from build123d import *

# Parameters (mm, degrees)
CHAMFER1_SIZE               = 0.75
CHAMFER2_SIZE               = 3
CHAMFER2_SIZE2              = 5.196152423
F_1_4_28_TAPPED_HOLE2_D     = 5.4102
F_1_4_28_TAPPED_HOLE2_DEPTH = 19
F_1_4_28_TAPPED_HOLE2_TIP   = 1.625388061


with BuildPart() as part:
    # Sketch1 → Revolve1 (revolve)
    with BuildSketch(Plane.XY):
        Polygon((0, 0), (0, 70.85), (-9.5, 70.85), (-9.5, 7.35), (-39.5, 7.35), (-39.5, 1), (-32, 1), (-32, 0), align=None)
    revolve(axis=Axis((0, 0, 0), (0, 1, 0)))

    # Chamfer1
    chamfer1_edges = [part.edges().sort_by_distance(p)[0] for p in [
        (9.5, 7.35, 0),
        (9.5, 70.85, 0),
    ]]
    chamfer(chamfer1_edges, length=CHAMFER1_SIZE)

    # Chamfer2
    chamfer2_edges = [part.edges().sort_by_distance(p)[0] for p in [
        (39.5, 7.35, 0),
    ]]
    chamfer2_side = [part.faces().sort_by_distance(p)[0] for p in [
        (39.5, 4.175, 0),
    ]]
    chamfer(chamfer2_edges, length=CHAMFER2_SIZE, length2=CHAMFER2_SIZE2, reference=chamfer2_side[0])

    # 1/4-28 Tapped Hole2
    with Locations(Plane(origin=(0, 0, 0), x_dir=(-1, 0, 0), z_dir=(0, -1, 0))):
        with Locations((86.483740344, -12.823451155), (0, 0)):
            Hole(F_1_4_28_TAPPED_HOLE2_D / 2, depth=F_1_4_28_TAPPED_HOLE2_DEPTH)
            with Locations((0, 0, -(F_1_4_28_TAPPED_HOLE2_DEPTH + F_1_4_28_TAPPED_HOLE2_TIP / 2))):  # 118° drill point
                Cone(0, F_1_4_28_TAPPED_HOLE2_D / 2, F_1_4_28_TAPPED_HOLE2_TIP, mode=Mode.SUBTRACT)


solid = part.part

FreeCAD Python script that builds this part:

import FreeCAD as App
import Part
import Sketcher

V = App.Vector
Q = App.Units.Quantity


def edges_at(feature, points):
    """Names of the edges that pass closest to the given points."""
    edges = feature.Shape.Edges
    near = lambda p: min(range(len(edges)), key=lambda i: edges[i].distToShape(Part.Vertex(*p))[0])
    return sorted({f"Edge{near(p) + 1}" for p in points})

doc = App.newDocument("Part")
body = doc.addObject("PartDesign::Body", "Body")

# Sketch on XY plane
sketch1 = body.newObject("Sketcher::SketchObject", "Sketch")
sketch1.AttachmentSupport = (doc.getObject("XY_Plane"), [""])
sketch1.MapMode = "FlatFace"
sketch1.addGeometry(Part.LineSegment(V(0, 0, 0), V(0, 70.8, 0)), False)
sketch1.addGeometry(Part.LineSegment(V(0, 70.8, 0), V(-9.5, 70.8, 0)), False)
sketch1.addGeometry(Part.LineSegment(V(-9.5, 70.8, 0), V(-9.5, 7.3, 0)), False)
sketch1.addGeometry(Part.LineSegment(V(-9.5, 7.3, 0), V(-39.5, 7.3, 0)), False)
sketch1.addGeometry(Part.LineSegment(V(-39.5, 7.3, 0), V(-39.5, 1, 0)), False)
sketch1.addGeometry(Part.LineSegment(V(-39.5, 1, 0), V(-32, 1, 0)), False)
sketch1.addGeometry(Part.LineSegment(V(-32, 1, 0), V(-32, 0, 0)), False)
sketch1.addGeometry(Part.LineSegment(V(-32, 0, 0), V(0, 0, 0)), False)
sketch1.addConstraint(Sketcher.Constraint("Coincident", 0, 2, 1, 1))
sketch1.addConstraint(Sketcher.Constraint("Coincident", 1, 2, 2, 1))
sketch1.addConstraint(Sketcher.Constraint("Coincident", 2, 2, 3, 1))
sketch1.addConstraint(Sketcher.Constraint("Coincident", 3, 2, 4, 1))
sketch1.addConstraint(Sketcher.Constraint("Coincident", 4, 2, 5, 1))
sketch1.addConstraint(Sketcher.Constraint("Coincident", 5, 2, 6, 1))
sketch1.addConstraint(Sketcher.Constraint("Coincident", 6, 2, 7, 1))
sketch1.addConstraint(Sketcher.Constraint("Coincident", 7, 2, 0, 1))
sketch1.addConstraint(Sketcher.Constraint("Vertical", 0))
sketch1.addConstraint(Sketcher.Constraint("Horizontal", 1))
sketch1.addConstraint(Sketcher.Constraint("Vertical", 2))
sketch1.addConstraint(Sketcher.Constraint("Horizontal", 3))
sketch1.addConstraint(Sketcher.Constraint("Vertical", 4))
sketch1.addConstraint(Sketcher.Constraint("Horizontal", 5))
sketch1.addConstraint(Sketcher.Constraint("Vertical", 6))
sketch1.addConstraint(Sketcher.Constraint("Horizontal", 7))
sketch1.addConstraint(Sketcher.Constraint("Coincident", 7, 2, -1, 1))
sketch1.addConstraint(Sketcher.Constraint("DistanceX", 3, 2, 3, 1, Q("30 mm")))
sketch1.addConstraint(Sketcher.Constraint("DistanceX", 7, 1, 7, 2, Q("32 mm")))
sketch1.addConstraint(Sketcher.Constraint("DistanceY", 6, 2, 6, 1, Q("1 mm")))
sketch1.addConstraint(Sketcher.Constraint("DistanceX", 1, 2, 1, 1, Q("9.5 mm")))
sketch1.addConstraint(Sketcher.Constraint("DistanceY", 2, 2, 2, 1, Q("63.5 mm")))
sketch1.addConstraint(Sketcher.Constraint("DistanceY", 0, 1, 0, 2, Q("70.85 mm")))
revolution = body.newObject("PartDesign::Revolution", "Revolution")
revolution.Profile = sketch1
revolution.ReferenceAxis = (sketch1, ["V_Axis"])
revolution.Angle = 360
doc.recompute()

chamfer = body.newObject("PartDesign::Chamfer", "Chamfer")
chamfer.Base = (revolution, edges_at(revolution, [(9.5, 7.35, 0), (9.5, 70.85, 0)]))
chamfer.Size = 0.75
doc.recompute()

chamfer2 = body.newObject("PartDesign::Chamfer", "Chamfer001")
chamfer2.Base = (chamfer, edges_at(chamfer, [(39.5, 7.35, 0)]))
chamfer2.ChamferType = "Two distances"
chamfer2.Size = 3
chamfer2.Size2 = 5.196152
chamfer2.FlipDirection = True

# Sketch on XZ plane
sketch2 = body.newObject("Sketcher::SketchObject", "Sketch001")
sketch2.AttachmentSupport = (doc.getObject("XZ_Plane"), [""])
sketch2.MapMode = "FlatFace"
sketch2.addGeometry(Part.Circle(V(-86.5, 12.8, 0), V(0, 0, 1), 2.7), False)
sketch2.addGeometry(Part.Circle(V(0, 0, 0), V(0, 0, 1), 2.7), False)
sketch2.addConstraint(Sketcher.Constraint("Coincident", 1, 3, -1, 1))
sketch2.addConstraint(Sketcher.Constraint("Equal", 0, 1))
sketch2.addConstraint(Sketcher.Constraint("Diameter", 0, Q("5.4102 mm")))
sketch2.addConstraint(Sketcher.Constraint("DistanceX", 0, 3, -1, 1, Q("86.48374 mm")))
sketch2.addConstraint(Sketcher.Constraint("DistanceY", -1, 1, 0, 3, Q("12.823451 mm")))
doc.recompute()
hole = body.newObject("PartDesign::Hole", "Hole")
hole.Profile = sketch2
hole.ThreadType = "None"
hole.Diameter = 5.4102
hole.DepthType = "Dimension"
hole.Depth = 19
hole.DrillPoint = "Angled"
hole.DrillPointAngle = 118

doc.recompute()
